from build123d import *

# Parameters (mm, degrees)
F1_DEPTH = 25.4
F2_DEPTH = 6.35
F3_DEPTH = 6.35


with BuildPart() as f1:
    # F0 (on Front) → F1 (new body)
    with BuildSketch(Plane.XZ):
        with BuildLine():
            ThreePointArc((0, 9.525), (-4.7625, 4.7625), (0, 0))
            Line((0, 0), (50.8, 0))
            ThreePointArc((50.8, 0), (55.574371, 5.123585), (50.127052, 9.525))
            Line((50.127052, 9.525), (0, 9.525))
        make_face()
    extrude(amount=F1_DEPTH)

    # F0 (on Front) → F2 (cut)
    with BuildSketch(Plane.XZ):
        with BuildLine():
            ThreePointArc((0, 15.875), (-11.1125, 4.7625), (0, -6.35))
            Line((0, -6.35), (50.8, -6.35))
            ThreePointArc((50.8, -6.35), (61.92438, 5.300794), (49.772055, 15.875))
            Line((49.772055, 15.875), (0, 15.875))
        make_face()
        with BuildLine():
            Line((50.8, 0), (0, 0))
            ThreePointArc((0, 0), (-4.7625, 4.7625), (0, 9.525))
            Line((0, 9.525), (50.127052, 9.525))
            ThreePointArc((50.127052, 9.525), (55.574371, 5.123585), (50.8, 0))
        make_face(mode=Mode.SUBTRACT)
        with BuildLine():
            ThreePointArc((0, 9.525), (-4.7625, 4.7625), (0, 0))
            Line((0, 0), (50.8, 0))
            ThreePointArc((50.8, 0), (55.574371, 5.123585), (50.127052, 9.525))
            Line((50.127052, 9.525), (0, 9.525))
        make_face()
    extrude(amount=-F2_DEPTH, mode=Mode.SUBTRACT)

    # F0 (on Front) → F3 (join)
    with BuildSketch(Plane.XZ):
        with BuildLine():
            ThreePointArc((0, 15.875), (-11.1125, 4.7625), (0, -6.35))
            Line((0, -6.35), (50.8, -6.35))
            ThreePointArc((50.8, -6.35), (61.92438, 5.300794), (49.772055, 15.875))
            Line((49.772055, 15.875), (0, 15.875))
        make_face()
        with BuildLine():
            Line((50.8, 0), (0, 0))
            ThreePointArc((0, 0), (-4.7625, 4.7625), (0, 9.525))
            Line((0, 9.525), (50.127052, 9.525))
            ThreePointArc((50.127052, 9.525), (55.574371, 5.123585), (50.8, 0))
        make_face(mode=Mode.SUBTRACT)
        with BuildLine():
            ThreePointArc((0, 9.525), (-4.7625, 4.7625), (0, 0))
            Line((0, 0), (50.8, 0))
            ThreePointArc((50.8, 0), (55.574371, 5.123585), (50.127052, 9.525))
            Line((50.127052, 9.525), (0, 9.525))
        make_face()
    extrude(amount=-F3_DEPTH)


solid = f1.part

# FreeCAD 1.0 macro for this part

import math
import FreeCAD as App
import Part
import Sketcher

V = App.Vector
Q = App.Units.Quantity

doc = App.newDocument("Part")
params = doc.addObject("Spreadsheet::Sheet", "Params")
for row, (alias, value) in enumerate([
    ("sketch1_width", "2 in"),
    ("sketch1_radius", "0.1875 in"),
    ("pad1_length", "1 in"),
    ("sketch2_width", "2 in"),
    ("sketch2_radius", "0.4375 in"),
    ("pocket1_length", "0.25 in"),
    ("sketch3_width", "2 in"),
    ("sketch3_radius", "0.4375 in"),
    ("pad2_length", "0.25 in"),
], start=1):
    params.set(f"A{row}", alias)
    params.set(f"B{row}", "=" + value)
    params.setAlias(f"B{row}", alias)

body = doc.addObject("PartDesign::Body", "Body")

# Sketch on XZ plane
sketch1 = body.newObject("Sketcher::SketchObject", "Sketch")
sketch1.AttachmentSupport = (doc.getObject("XZ_Plane"), [""])
sketch1.MapMode = "FlatFace"
sketch1.addGeometry([
    Part.ArcOfCircle(Part.Circle(V(0, 4.7625, 0), V(0, 0, 1), 4.7625), math.radians(90), math.radians(270)),
    Part.LineSegment(V(0, 0, 0), V(50.8, 0, 0)),
    Part.ArcOfCircle(Part.Circle(V(50.8, 4.786272, 0), V(0, 0, 1), 4.786272), math.radians(-89.999997), math.radians(98.082542)),
    Part.LineSegment(V(50.127052, 9.525, 0), V(0, 9.525, 0)),
], False)
sketch1.addConstraint([
    Sketcher.Constraint("Tangent", 0, 2, 1, 1),
    Sketcher.Constraint("Tangent", 1, 2, 2, 1),
    Sketcher.Constraint("Coincident", 2, 2, 3, 1),
    Sketcher.Constraint("Tangent", 3, 2, 0, 1),
    Sketcher.Constraint("Horizontal", 1),
    Sketcher.Constraint("Horizontal", 3),
    Sketcher.Constraint("Coincident", 0, 2, -1, 1),
    Sketcher.Constraint("DistanceX", 1, 1, 1, 2, Q("2 in")),
    Sketcher.Constraint("Radius", 0, Q("0.1875 in")),
    Sketcher.Constraint("Radius", 2, Q("4.786272 mm")),
])
sketch1.setExpression("Constraints[7]", "Params.sketch1_width")
sketch1.setExpression("Constraints[8]", "Params.sketch1_radius")
pad1 = body.newObject("PartDesign::Pad", "Pad")
pad1.Profile = sketch1
pad1.setExpression("Length", "Params.pad1_length")

# Sketch on XZ plane
sketch2 = body.newObject("Sketcher::SketchObject", "Sketch001")
sketch2.AttachmentSupport = (doc.getObject("XZ_Plane"), [""])
sketch2.MapMode = "FlatFace"
sketch2.addGeometry([
    Part.ArcOfCircle(Part.Circle(V(0, 4.7625, 0), V(0, 0, 1), 11.1125), math.radians(90), math.radians(270)),
    Part.LineSegment(V(0, -6.35, 0), V(50.8, -6.35, 0)),
    Part.ArcOfCircle(Part.Circle(V(50.8, 4.786272, 0), V(0, 0, 1), 11.136272), math.radians(-90.000001), math.radians(95.296286)),
    Part.LineSegment(V(49.772055, 15.875, 0), V(0, 15.875, 0)),
], False)
sketch2.addConstraint([
    Sketcher.Constraint("Tangent", 0, 2, 1, 1),
    Sketcher.Constraint("Tangent", 1, 2, 2, 1),
    Sketcher.Constraint("Coincident", 2, 2, 3, 1),
    Sketcher.Constraint("Tangent", 3, 2, 0, 1),
    Sketcher.Constraint("Horizontal", 1),
    Sketcher.Constraint("Horizontal", 3),
    Sketcher.Constraint("PointOnObject", 0, 3, -2),
    Sketcher.Constraint("DistanceX", 1, 1, 1, 2, Q("2 in")),
    Sketcher.Constraint("Radius", 0, Q("0.4375 in")),
    Sketcher.Constraint("DistanceY", 0, 2, -1, 1, Q("0.25 in")),
    Sketcher.Constraint("Radius", 2, Q("11.136272 mm")),
])
sketch2.setExpression("Constraints[7]", "Params.sketch2_width")
sketch2.setExpression("Constraints[8]", "Params.sketch2_radius")
pocket1 = body.newObject("PartDesign::Pocket", "Pocket")
pocket1.Profile = sketch2
pocket1.setExpression("Length", "Params.pocket1_length")

# Sketch on XZ plane
sketch3 = body.newObject("Sketcher::SketchObject", "Sketch002")
sketch3.AttachmentSupport = (doc.getObject("XZ_Plane"), [""])
sketch3.MapMode = "FlatFace"
sketch3.addGeometry([
    Part.ArcOfCircle(Part.Circle(V(0, 4.7625, 0), V(0, 0, 1), 11.1125), math.radians(90), math.radians(270)),
    Part.LineSegment(V(0, -6.35, 0), V(50.8, -6.35, 0)),
    Part.ArcOfCircle(Part.Circle(V(50.8, 4.786272, 0), V(0, 0, 1), 11.136272), math.radians(-90.000001), math.radians(95.296286)),
    Part.LineSegment(V(49.772055, 15.875, 0), V(0, 15.875, 0)),
], False)
sketch3.addConstraint([
    Sketcher.Constraint("Tangent", 0, 2, 1, 1),
    Sketcher.Constraint("Tangent", 1, 2, 2, 1),
    Sketcher.Constraint("Coincident", 2, 2, 3, 1),
    Sketcher.Constraint("Tangent", 3, 2, 0, 1),
    Sketcher.Constraint("Horizontal", 1),
    Sketcher.Constraint("Horizontal", 3),
    Sketcher.Constraint("PointOnObject", 0, 3, -2),
    Sketcher.Constraint("DistanceX", 1, 1, 1, 2, Q("2 in")),
    Sketcher.Constraint("Radius", 0, Q("0.4375 in")),
    Sketcher.Constraint("DistanceY", 0, 2, -1, 1, Q("0.25 in")),
    Sketcher.Constraint("Radius", 2, Q("11.136272 mm")),
])
sketch3.setExpression("Constraints[7]", "Params.sketch3_width")
sketch3.setExpression("Constraints[8]", "Params.sketch3_radius")
pad2 = body.newObject("PartDesign::Pad", "Pad001")
pad2.Profile = sketch3
pad2.setExpression("Length", "Params.pad2_length")
pad2.Reversed = True

doc.recompute()
